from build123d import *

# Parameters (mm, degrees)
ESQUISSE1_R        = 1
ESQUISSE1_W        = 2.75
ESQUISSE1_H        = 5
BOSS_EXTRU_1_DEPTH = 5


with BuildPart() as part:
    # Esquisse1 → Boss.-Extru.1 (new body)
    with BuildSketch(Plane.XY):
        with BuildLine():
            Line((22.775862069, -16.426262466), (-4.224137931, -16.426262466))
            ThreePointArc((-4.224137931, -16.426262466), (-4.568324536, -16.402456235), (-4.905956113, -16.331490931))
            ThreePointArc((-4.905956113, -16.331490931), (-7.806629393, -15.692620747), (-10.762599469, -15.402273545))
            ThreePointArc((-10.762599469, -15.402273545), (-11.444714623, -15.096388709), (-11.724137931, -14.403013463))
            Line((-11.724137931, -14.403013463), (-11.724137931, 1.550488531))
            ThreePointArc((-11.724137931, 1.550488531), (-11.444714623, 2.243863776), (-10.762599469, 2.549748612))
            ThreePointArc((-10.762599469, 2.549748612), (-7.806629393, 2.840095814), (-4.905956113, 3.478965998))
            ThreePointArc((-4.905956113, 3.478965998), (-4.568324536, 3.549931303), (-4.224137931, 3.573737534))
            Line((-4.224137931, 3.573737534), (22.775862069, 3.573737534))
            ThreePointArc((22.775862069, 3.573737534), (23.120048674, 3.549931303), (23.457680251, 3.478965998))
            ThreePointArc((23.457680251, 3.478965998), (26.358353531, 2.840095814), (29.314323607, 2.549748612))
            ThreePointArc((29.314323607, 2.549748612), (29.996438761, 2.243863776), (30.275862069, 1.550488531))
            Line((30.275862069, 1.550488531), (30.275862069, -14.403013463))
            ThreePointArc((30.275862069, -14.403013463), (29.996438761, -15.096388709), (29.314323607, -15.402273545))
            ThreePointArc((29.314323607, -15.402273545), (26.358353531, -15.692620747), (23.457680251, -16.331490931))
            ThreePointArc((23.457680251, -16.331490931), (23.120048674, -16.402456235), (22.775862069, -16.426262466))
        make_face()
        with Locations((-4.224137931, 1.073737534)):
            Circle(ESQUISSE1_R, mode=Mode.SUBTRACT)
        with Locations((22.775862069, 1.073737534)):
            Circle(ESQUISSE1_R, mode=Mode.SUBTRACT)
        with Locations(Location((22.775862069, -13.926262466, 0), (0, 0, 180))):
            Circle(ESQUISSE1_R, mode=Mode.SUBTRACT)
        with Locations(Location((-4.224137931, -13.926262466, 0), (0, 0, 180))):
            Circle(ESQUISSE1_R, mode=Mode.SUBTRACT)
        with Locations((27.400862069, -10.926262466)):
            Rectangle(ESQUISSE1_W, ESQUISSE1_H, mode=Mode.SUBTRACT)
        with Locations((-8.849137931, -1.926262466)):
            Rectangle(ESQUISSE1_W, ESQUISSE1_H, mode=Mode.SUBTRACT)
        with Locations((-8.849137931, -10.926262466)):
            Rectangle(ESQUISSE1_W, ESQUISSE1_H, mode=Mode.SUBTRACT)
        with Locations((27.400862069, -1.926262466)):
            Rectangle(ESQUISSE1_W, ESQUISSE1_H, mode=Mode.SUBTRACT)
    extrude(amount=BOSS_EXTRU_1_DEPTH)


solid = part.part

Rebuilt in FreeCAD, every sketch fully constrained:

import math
import FreeCAD as App
import Part
import Sketcher
from FreeCAD import Vector
Q = App.Units.Quantity

doc = App.newDocument("Part")
body = doc.addObject("PartDesign::Body", "Body")

# Sketch on XY plane
sketch1 = body.newObject("Sketcher::SketchObject", "Sketch")
sketch1.AttachmentSupport = (doc.getObject("XY_Plane"), [""])
sketch1.MapMode = "FlatFace"
sketch1.addGeometry([
    Part.LineSegment(Vector(-4.224138, -16.426262, 0), Vector(22.775862, -16.426262, 0)),  # 0
    Part.ArcOfCircle(Part.Circle(Vector(22.775862, -13.926262, 0), Vector(0, 0, 1), 2.5), math.radians(-90), math.radians(-74.17338)),  # 1
    Part.ArcOfCircle(Part.Circle(Vector(30.275862, -40.383776, 0), Vector(0, 0, 1), 25), math.radians(92.204228), math.radians(105.82662)),  # 2
    Part.ArcOfCircle(Part.Circle(Vector(29.275862, -14.403013, 0), Vector(0, 0, 1), 1), math.radians(-87.795773), math.radians(0)),  # 3
    Part.LineSegment(Vector(30.275862, -14.403013, 0), Vector(30.275862, 1.550489, 0)),  # 4
    Part.ArcOfCircle(Part.Circle(Vector(29.275862, 1.550489, 0), Vector(0, 0, 1), 1), math.radians(0), math.radians(87.795773)),  # 5
    Part.ArcOfCircle(Part.Circle(Vector(30.275862, 27.531251, 0), Vector(0, 0, 1), 25), math.radians(-105.82662), math.radians(-92.204228)),  # 6
    Part.ArcOfCircle(Part.Circle(Vector(22.775862, 1.073738, 0), Vector(0, 0, 1), 2.5), math.radians(74.17338), math.radians(90)),  # 7
    Part.LineSegment(Vector(22.775862, 3.573738, 0), Vector(-4.224138, 3.573738, 0)),  # 8
    Part.ArcOfCircle(Part.Circle(Vector(-4.224138, 1.073738, 0), Vector(0, 0, 1), 2.5), math.radians(90), math.radians(105.82662)),  # 9
    Part.ArcOfCircle(Part.Circle(Vector(-11.724138, 27.531251, 0), Vector(0, 0, 1), 25), math.radians(-87.795772), math.radians(-74.17338)),  # 10
    Part.ArcOfCircle(Part.Circle(Vector(-10.724138, 1.550489, 0), Vector(0, 0, 1), 1), math.radians(92.204227), math.radians(180)),  # 11
    Part.LineSegment(Vector(-11.724138, 1.550489, 0), Vector(-11.724138, -14.403013, 0)),  # 12
    Part.ArcOfCircle(Part.Circle(Vector(-10.724138, -14.403013, 0), Vector(0, 0, 1), 1), math.radians(180), math.radians(267.795773)),  # 13
    Part.ArcOfCircle(Part.Circle(Vector(-11.724138, -40.383776, 0), Vector(0, 0, 1), 25), math.radians(74.17338), math.radians(87.795772)),  # 14
    Part.ArcOfCircle(Part.Circle(Vector(-4.224138, -13.926262, 0), Vector(0, 0, 1), 2.5), math.radians(-105.82662), math.radians(-90)),  # 15
    Part.Circle(Vector(22.775862, -13.926262, 0), Vector(0, 0, 1), 1),  # 16
    Part.LineSegment(Vector(26.025862, -13.426262, 0), Vector(26.025862, -8.426262, 0)),  # 17
    Part.LineSegment(Vector(26.025862, -8.426262, 0), Vector(28.775862, -8.426262, 0)),  # 18
    Part.LineSegment(Vector(28.775862, -8.426262, 0), Vector(28.775862, -13.426262, 0)),  # 19
    Part.LineSegment(Vector(28.775862, -13.426262, 0), Vector(26.025862, -13.426262, 0)),  # 20
    Part.Circle(Vector(-4.224138, -13.926262, 0), Vector(0, 0, 1), 1),  # 21
    Part.LineSegment(Vector(-10.224138, -13.426262, 0), Vector(-10.224138, -8.426262, 0)),  # 22
    Part.LineSegment(Vector(-10.224138, -8.426262, 0), Vector(-7.474138, -8.426262, 0)),  # 23
    Part.LineSegment(Vector(-7.474138, -8.426262, 0), Vector(-7.474138, -13.426262, 0)),  # 24
    Part.LineSegment(Vector(-7.474138, -13.426262, 0), Vector(-10.224138, -13.426262, 0)),  # 25
    Part.LineSegment(Vector(26.025862, -4.426262, 0), Vector(26.025862, 0.573738, 0)),  # 26
    Part.LineSegment(Vector(26.025862, 0.573738, 0), Vector(28.775862, 0.573738, 0)),  # 27
    Part.LineSegment(Vector(28.775862, 0.573738, 0), Vector(28.775862, -4.426262, 0)),  # 28
    Part.LineSegment(Vector(28.775862, -4.426262, 0), Vector(26.025862, -4.426262, 0)),  # 29
    Part.Circle(Vector(22.775862, 1.073738, 0), Vector(0, 0, 1), 1),  # 30
    Part.LineSegment(Vector(-10.224138, -4.426262, 0), Vector(-10.224138, 0.573738, 0)),  # 31
    Part.LineSegment(Vector(-10.224138, 0.573738, 0), Vector(-7.474138, 0.573738, 0)),  # 32
    Part.LineSegment(Vector(-7.474138, 0.573738, 0), Vector(-7.474138, -4.426262, 0)),  # 33
    Part.LineSegment(Vector(-7.474138, -4.426262, 0), Vector(-10.224138, -4.426262, 0)),  # 34
    Part.Circle(Vector(-4.224138, 1.073738, 0), Vector(0, 0, 1), 1),  # 35
], False)
sketch1.addConstraint([
    Sketcher.Constraint("Tangent", 0, 2, 1, 1),
    Sketcher.Constraint("Tangent", 1, 2, 2, 2),
    Sketcher.Constraint("Tangent", 2, 1, 3, 1),
    Sketcher.Constraint("Tangent", 3, 2, 4, 1),
    Sketcher.Constraint("Tangent", 4, 2, 5, 1),
    Sketcher.Constraint("Tangent", 5, 2, 6, 2),
    Sketcher.Constraint("Tangent", 6, 1, 7, 1),
    Sketcher.Constraint("Tangent", 7, 2, 8, 1),
    Sketcher.Constraint("Tangent", 8, 2, 9, 1),
    Sketcher.Constraint("Tangent", 9, 2, 10, 2),
    Sketcher.Constraint("Tangent", 10, 1, 11, 1),
    Sketcher.Constraint("Tangent", 11, 2, 12, 1),
    Sketcher.Constraint("Tangent", 12, 2, 13, 1),
    Sketcher.Constraint("Tangent", 13, 2, 14, 2),
    Sketcher.Constraint("Tangent", 14, 1, 15, 1),
    Sketcher.Constraint("Tangent", 15, 2, 0, 1),
    Sketcher.Constraint("Coincident", 17, 2, 18, 1),
    Sketcher.Constraint("Coincident", 18, 2, 19, 1),
    Sketcher.Constraint("Coincident", 19, 2, 20, 1),
    Sketcher.Constraint("Coincident", 20, 2, 17, 1),
    Sketcher.Constraint("Coincident", 22, 2, 23, 1),
    Sketcher.Constraint("Coincident", 23, 2, 24, 1),
    Sketcher.Constraint("Coincident", 24, 2, 25, 1),
    Sketcher.Constraint("Coincident", 25, 2, 22, 1),
    Sketcher.Constraint("Coincident", 26, 2, 27, 1),
    Sketcher.Constraint("Coincident", 27, 2, 28, 1),
    Sketcher.Constraint("Coincident", 28, 2, 29, 1),
    Sketcher.Constraint("Coincident", 29, 2, 26, 1),
    Sketcher.Constraint("Coincident", 31, 2, 32, 1),
    Sketcher.Constraint("Coincident", 32, 2, 33, 1),
    Sketcher.Constraint("Coincident", 33, 2, 34, 1),
    Sketcher.Constraint("Coincident", 34, 2, 31, 1),
    Sketcher.Constraint("Horizontal", 0),
    Sketcher.Constraint("Vertical", 4),
    Sketcher.Constraint("Horizontal", 8),
    Sketcher.Constraint("Vertical", 12),
    Sketcher.Constraint("Vertical", 17),
    Sketcher.Constraint("Horizontal", 18),
    Sketcher.Constraint("Vertical", 19),
    Sketcher.Constraint("Horizontal", 20),
    Sketcher.Constraint("Vertical", 22),
    Sketcher.Constraint("Horizontal", 23),
    Sketcher.Constraint("Vertical", 24),
    Sketcher.Constraint("Horizontal", 25),
    Sketcher.Constraint("Vertical", 26),
    Sketcher.Constraint("Horizontal", 27),
    Sketcher.Constraint("Vertical", 28),
    Sketcher.Constraint("Horizontal", 29),
    Sketcher.Constraint("Vertical", 31),
    Sketcher.Constraint("Horizontal", 32),
    Sketcher.Constraint("Vertical", 33),
    Sketcher.Constraint("Horizontal", 34),
    Sketcher.Constraint("Coincident", 16, 3, 1, 3),
    Sketcher.Constraint("Coincident", 21, 3, 15, 3),
    Sketcher.Constraint("Coincident", 30, 3, 7, 3),
    Sketcher.Constraint("Coincident", 35, 3, 9, 3),
    Sketcher.Constraint("Equal", 3, 5),
    Sketcher.Constraint("Equal", 2, 6),
    Sketcher.Constraint("Equal", 1, 7),
    Sketcher.Constraint("Equal", 7, 9),
    Sketcher.Constraint("Equal", 6, 10),
    Sketcher.Constraint("Equal", 5, 11),
    Sketcher.Constraint("Equal", 11, 13),
    Sketcher.Constraint("Equal", 10, 14),
    Sketcher.Constraint("Equal", 9, 15),
    Sketcher.Constraint("Equal", 13, 16),
    Sketcher.Constraint("Equal", 16, 21),
    Sketcher.Constraint("Equal", 21, 30),
    Sketcher.Constraint("Equal", 30, 35),
    Sketcher.Constraint("Horizontal", 6, 3, 10, 3),
    Sketcher.Constraint("Horizontal", 5, 3, 11, 3),
    Sketcher.Constraint("Horizontal", 3, 3, 13, 3),
    Sketcher.Constraint("Horizontal", 2, 3, 14, 3),
    Sketcher.Constraint("Horizontal", 18, 2, 22, 2),
    Sketcher.Constraint("Horizontal", 20, 2, 24, 2),
    Sketcher.Constraint("Horizontal", 27, 2, 31, 2),
    Sketcher.Constraint("Horizontal", 29, 2, 33, 2),
    Sketcher.Constraint("Vertical", 2, 3, 6, 3),
    Sketcher.Constraint("Vertical", 1, 3, 7, 3),
    Sketcher.Constraint("Vertical", 6, 3, 3, 2),
    Sketcher.Constraint("Vertical", 20, 2, 26, 2),
    Sketcher.Constraint("Vertical", 19, 2, 27, 2),
    Sketcher.Constraint("Vertical", 25, 2, 31, 2),
    Sketcher.Constraint("Vertical", 24, 2, 32, 2),
    Sketcher.Constraint("Equal", 20, 23),
    Sketcher.Constraint("Equal", 24, 26),
    Sketcher.Constraint("Diameter", 16, Q("2 mm")),
    Sketcher.Constraint("Radius", 2, Q("25 mm")),
    Sketcher.Constraint("Radius", 1, Q("2.5 mm")),
    Sketcher.Constraint("DistanceX", 0, 1, 0, 2, Q("27 mm")),
    Sketcher.Constraint("DistanceY", 17, 1, 17, 2, Q("5 mm")),
    Sketcher.Constraint("DistanceY", 1, 3, 7, 3, Q("15 mm")),
    Sketcher.Constraint("DistanceX", 10, 3, 6, 3, Q("42 mm")),
    Sketcher.Constraint("DistanceX", 1, 3, 18, 2, Q("6 mm")),
    Sketcher.Constraint("DistanceX", 22, 2, 15, 3, Q("6 mm")),
    Sketcher.Constraint("DistanceY", 18, 2, 28, 2, Q("4 mm")),
    Sketcher.Constraint("DistanceX", 18, 1, 18, 2, Q("2.75 mm")),
    Sketcher.Constraint("DistanceY", 1, 3, 17, 2, Q("5.5 mm")),
    Sketcher.Constraint("DistanceX", 10, 1, -1, 1, Q("10.762599 mm")),
    Sketcher.Constraint("DistanceY", -1, 1, 5, 3, Q("1.550489 mm")),
])
pad1 = body.newObject("PartDesign::Pad", "Pad")
pad1.Profile = sketch1
pad1.Length = 5

doc.recompute()
